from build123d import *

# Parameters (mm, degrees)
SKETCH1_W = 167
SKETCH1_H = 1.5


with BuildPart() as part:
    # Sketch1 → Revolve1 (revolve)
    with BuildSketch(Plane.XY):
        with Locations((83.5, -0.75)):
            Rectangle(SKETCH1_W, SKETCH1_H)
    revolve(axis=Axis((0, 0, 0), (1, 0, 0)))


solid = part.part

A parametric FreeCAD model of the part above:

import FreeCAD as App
import Part
import Sketcher

doc = App.newDocument("Part")
body = doc.addObject("PartDesign::Body", "Body")

# Sketch on XY plane
sketch1 = body.newObject("Sketcher::SketchObject", "Sketch")
sketch1.AttachmentSupport = (doc.getObject("XY_Plane"), [""])
sketch1.MapMode = "FlatFace"
sketch1.addGeometry([
    Part.LineSegment(App.Vector(0, 0, 0), App.Vector(0, -1.5, 0)),
    Part.LineSegment(App.Vector(0, -1.5, 0), App.Vector(167, -1.5, 0)),
    Part.LineSegment(App.Vector(167, -1.5, 0), App.Vector(167, 0, 0)),
    Part.LineSegment(App.Vector(167, 0, 0), App.Vector(0, 0, 0)),
], False)
sketch1.addConstraint([
    Sketcher.Constraint("Coincident", 0, 2, 1, 1),
    Sketcher.Constraint("Coincident", 1, 2, 2, 1),
    Sketcher.Constraint("Coincident", 2, 2, 3, 1),
    Sketcher.Constraint("Coincident", 3, 2, 0, 1),
    Sketcher.Constraint("Vertical", 0),
    Sketcher.Constraint("Horizontal", 1),
    Sketcher.Constraint("Vertical", 2),
    Sketcher.Constraint("Horizontal", 3),
    Sketcher.Constraint("Coincident", 3, 2, -1, 1),
    Sketcher.Constraint("DistanceX", 1, 1, 1, 2, 167.0),
    Sketcher.Constraint("DistanceY", 0, 2, 0, 1, 1.5),
])
revolution = body.newObject("PartDesign::Revolution", "Revolution")
revolution.Profile = sketch1
revolution.ReferenceAxis = (sketch1, ["H_Axis"])
revolution.Angle = 360

doc.recompute()
